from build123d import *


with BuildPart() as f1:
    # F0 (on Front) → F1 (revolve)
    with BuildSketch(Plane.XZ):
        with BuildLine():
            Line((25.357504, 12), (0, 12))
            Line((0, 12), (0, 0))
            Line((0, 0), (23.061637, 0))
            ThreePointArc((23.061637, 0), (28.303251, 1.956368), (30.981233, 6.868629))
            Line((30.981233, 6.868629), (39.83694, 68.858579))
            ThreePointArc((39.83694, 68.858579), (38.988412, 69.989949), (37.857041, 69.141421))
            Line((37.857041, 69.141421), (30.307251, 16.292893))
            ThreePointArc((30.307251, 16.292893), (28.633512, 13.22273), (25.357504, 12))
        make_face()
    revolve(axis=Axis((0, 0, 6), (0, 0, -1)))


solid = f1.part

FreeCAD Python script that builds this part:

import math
import FreeCAD as App
import Part
import Sketcher
from FreeCAD import Vector

doc = App.newDocument("Part")
body = doc.addObject("PartDesign::Body", "Body")

# Sketch on XZ plane
sketch1 = doc.addObject("Sketcher::SketchObject", "Sketch")
body.addObject(sketch1)
sketch1.AttachmentSupport = (doc.XZ_Plane, [""])
sketch1.MapMode = "FlatFace"
sketch1.addGeometry(Part.LineSegment(Vector(25.4, 12, 0), Vector(0, 12, 0)), False)
sketch1.addGeometry(Part.LineSegment(Vector(0, 12, 0), Vector(0, 0, 0)), False)
sketch1.addGeometry(Part.LineSegment(Vector(0, 0, 0), Vector(23.1, 0, 0)), False)
sketch1.addGeometry(Part.ArcOfCircle(Part.Circle(Vector(23.1, 8, 0), Vector(0, 0, 1), 8), math.radians(-90), math.radians(-8)), False)
sketch1.addGeometry(Part.LineSegment(Vector(31, 6.9, 0), Vector(39.8, 68.9, 0)), False)
sketch1.addGeometry(Part.ArcOfCircle(Part.Circle(Vector(38.8, 69, 0), Vector(0, 0, 1), 1), math.radians(-8), math.radians(172)), False)
sketch1.addGeometry(Part.LineSegment(Vector(37.9, 69.1, 0), Vector(30.3, 16.3, 0)), False)
sketch1.addGeometry(Part.ArcOfCircle(Part.Circle(Vector(25.4, 17, 0), Vector(0, 0, 1), 5), math.radians(-90), math.radians(-8)), False)
sketch1.addConstraint(Sketcher.Constraint("Coincident", 0, 2, 1, 1))
sketch1.addConstraint(Sketcher.Constraint("Coincident", 1, 2, 2, 1))
sketch1.addConstraint(Sketcher.Constraint("Tangent", 2, 2, 3, 1))
sketch1.addConstraint(Sketcher.Constraint("Tangent", 3, 2, 4, 1))
sketch1.addConstraint(Sketcher.Constraint("Tangent", 4, 2, 5, 1))
sketch1.addConstraint(Sketcher.Constraint("Tangent", 5, 2, 6, 1))
sketch1.addConstraint(Sketcher.Constraint("Tangent", 6, 2, 7, 2))
sketch1.addConstraint(Sketcher.Constraint("Tangent", 7, 1, 0, 1))
sketch1.addConstraint(Sketcher.Constraint("Horizontal", 0))
sketch1.addConstraint(Sketcher.Constraint("Vertical", 1))
sketch1.addConstraint(Sketcher.Constraint("Horizontal", 2))
sketch1.addConstraint(Sketcher.Constraint("Coincident", 1, 2, -1, 1))
sketch1.addConstraint(Sketcher.Constraint("Parallel", 4, 6))
sketch1.addConstraint(Sketcher.Constraint("Radius", 3, 7.999999))
sketch1.addConstraint(Sketcher.Constraint("Radius", 5, 1.0))
sketch1.addConstraint(Sketcher.Constraint("Radius", 7, 5.0))
sketch1.addConstraint(Sketcher.Constraint("DistanceY", 1, 2, 1, 1, 12.0))
sketch1.addConstraint(Sketcher.Constraint("DistanceY", -1, 1, 5, 3, 69.0))
sketch1.addConstraint(Sketcher.Constraint("DistanceX", 0, 2, 0, 1, 25.357504))
sketch1.addConstraint(Sketcher.Constraint("DistanceX", 2, 1, 2, 2, 23.061637))
revolution = doc.addObject("PartDesign::Revolution", "Revolution")
body.addObject(revolution)
revolution.Profile = sketch1
revolution.ReferenceAxis = (sketch1, ["V_Axis"])
revolution.Angle = 360

doc.recompute()
